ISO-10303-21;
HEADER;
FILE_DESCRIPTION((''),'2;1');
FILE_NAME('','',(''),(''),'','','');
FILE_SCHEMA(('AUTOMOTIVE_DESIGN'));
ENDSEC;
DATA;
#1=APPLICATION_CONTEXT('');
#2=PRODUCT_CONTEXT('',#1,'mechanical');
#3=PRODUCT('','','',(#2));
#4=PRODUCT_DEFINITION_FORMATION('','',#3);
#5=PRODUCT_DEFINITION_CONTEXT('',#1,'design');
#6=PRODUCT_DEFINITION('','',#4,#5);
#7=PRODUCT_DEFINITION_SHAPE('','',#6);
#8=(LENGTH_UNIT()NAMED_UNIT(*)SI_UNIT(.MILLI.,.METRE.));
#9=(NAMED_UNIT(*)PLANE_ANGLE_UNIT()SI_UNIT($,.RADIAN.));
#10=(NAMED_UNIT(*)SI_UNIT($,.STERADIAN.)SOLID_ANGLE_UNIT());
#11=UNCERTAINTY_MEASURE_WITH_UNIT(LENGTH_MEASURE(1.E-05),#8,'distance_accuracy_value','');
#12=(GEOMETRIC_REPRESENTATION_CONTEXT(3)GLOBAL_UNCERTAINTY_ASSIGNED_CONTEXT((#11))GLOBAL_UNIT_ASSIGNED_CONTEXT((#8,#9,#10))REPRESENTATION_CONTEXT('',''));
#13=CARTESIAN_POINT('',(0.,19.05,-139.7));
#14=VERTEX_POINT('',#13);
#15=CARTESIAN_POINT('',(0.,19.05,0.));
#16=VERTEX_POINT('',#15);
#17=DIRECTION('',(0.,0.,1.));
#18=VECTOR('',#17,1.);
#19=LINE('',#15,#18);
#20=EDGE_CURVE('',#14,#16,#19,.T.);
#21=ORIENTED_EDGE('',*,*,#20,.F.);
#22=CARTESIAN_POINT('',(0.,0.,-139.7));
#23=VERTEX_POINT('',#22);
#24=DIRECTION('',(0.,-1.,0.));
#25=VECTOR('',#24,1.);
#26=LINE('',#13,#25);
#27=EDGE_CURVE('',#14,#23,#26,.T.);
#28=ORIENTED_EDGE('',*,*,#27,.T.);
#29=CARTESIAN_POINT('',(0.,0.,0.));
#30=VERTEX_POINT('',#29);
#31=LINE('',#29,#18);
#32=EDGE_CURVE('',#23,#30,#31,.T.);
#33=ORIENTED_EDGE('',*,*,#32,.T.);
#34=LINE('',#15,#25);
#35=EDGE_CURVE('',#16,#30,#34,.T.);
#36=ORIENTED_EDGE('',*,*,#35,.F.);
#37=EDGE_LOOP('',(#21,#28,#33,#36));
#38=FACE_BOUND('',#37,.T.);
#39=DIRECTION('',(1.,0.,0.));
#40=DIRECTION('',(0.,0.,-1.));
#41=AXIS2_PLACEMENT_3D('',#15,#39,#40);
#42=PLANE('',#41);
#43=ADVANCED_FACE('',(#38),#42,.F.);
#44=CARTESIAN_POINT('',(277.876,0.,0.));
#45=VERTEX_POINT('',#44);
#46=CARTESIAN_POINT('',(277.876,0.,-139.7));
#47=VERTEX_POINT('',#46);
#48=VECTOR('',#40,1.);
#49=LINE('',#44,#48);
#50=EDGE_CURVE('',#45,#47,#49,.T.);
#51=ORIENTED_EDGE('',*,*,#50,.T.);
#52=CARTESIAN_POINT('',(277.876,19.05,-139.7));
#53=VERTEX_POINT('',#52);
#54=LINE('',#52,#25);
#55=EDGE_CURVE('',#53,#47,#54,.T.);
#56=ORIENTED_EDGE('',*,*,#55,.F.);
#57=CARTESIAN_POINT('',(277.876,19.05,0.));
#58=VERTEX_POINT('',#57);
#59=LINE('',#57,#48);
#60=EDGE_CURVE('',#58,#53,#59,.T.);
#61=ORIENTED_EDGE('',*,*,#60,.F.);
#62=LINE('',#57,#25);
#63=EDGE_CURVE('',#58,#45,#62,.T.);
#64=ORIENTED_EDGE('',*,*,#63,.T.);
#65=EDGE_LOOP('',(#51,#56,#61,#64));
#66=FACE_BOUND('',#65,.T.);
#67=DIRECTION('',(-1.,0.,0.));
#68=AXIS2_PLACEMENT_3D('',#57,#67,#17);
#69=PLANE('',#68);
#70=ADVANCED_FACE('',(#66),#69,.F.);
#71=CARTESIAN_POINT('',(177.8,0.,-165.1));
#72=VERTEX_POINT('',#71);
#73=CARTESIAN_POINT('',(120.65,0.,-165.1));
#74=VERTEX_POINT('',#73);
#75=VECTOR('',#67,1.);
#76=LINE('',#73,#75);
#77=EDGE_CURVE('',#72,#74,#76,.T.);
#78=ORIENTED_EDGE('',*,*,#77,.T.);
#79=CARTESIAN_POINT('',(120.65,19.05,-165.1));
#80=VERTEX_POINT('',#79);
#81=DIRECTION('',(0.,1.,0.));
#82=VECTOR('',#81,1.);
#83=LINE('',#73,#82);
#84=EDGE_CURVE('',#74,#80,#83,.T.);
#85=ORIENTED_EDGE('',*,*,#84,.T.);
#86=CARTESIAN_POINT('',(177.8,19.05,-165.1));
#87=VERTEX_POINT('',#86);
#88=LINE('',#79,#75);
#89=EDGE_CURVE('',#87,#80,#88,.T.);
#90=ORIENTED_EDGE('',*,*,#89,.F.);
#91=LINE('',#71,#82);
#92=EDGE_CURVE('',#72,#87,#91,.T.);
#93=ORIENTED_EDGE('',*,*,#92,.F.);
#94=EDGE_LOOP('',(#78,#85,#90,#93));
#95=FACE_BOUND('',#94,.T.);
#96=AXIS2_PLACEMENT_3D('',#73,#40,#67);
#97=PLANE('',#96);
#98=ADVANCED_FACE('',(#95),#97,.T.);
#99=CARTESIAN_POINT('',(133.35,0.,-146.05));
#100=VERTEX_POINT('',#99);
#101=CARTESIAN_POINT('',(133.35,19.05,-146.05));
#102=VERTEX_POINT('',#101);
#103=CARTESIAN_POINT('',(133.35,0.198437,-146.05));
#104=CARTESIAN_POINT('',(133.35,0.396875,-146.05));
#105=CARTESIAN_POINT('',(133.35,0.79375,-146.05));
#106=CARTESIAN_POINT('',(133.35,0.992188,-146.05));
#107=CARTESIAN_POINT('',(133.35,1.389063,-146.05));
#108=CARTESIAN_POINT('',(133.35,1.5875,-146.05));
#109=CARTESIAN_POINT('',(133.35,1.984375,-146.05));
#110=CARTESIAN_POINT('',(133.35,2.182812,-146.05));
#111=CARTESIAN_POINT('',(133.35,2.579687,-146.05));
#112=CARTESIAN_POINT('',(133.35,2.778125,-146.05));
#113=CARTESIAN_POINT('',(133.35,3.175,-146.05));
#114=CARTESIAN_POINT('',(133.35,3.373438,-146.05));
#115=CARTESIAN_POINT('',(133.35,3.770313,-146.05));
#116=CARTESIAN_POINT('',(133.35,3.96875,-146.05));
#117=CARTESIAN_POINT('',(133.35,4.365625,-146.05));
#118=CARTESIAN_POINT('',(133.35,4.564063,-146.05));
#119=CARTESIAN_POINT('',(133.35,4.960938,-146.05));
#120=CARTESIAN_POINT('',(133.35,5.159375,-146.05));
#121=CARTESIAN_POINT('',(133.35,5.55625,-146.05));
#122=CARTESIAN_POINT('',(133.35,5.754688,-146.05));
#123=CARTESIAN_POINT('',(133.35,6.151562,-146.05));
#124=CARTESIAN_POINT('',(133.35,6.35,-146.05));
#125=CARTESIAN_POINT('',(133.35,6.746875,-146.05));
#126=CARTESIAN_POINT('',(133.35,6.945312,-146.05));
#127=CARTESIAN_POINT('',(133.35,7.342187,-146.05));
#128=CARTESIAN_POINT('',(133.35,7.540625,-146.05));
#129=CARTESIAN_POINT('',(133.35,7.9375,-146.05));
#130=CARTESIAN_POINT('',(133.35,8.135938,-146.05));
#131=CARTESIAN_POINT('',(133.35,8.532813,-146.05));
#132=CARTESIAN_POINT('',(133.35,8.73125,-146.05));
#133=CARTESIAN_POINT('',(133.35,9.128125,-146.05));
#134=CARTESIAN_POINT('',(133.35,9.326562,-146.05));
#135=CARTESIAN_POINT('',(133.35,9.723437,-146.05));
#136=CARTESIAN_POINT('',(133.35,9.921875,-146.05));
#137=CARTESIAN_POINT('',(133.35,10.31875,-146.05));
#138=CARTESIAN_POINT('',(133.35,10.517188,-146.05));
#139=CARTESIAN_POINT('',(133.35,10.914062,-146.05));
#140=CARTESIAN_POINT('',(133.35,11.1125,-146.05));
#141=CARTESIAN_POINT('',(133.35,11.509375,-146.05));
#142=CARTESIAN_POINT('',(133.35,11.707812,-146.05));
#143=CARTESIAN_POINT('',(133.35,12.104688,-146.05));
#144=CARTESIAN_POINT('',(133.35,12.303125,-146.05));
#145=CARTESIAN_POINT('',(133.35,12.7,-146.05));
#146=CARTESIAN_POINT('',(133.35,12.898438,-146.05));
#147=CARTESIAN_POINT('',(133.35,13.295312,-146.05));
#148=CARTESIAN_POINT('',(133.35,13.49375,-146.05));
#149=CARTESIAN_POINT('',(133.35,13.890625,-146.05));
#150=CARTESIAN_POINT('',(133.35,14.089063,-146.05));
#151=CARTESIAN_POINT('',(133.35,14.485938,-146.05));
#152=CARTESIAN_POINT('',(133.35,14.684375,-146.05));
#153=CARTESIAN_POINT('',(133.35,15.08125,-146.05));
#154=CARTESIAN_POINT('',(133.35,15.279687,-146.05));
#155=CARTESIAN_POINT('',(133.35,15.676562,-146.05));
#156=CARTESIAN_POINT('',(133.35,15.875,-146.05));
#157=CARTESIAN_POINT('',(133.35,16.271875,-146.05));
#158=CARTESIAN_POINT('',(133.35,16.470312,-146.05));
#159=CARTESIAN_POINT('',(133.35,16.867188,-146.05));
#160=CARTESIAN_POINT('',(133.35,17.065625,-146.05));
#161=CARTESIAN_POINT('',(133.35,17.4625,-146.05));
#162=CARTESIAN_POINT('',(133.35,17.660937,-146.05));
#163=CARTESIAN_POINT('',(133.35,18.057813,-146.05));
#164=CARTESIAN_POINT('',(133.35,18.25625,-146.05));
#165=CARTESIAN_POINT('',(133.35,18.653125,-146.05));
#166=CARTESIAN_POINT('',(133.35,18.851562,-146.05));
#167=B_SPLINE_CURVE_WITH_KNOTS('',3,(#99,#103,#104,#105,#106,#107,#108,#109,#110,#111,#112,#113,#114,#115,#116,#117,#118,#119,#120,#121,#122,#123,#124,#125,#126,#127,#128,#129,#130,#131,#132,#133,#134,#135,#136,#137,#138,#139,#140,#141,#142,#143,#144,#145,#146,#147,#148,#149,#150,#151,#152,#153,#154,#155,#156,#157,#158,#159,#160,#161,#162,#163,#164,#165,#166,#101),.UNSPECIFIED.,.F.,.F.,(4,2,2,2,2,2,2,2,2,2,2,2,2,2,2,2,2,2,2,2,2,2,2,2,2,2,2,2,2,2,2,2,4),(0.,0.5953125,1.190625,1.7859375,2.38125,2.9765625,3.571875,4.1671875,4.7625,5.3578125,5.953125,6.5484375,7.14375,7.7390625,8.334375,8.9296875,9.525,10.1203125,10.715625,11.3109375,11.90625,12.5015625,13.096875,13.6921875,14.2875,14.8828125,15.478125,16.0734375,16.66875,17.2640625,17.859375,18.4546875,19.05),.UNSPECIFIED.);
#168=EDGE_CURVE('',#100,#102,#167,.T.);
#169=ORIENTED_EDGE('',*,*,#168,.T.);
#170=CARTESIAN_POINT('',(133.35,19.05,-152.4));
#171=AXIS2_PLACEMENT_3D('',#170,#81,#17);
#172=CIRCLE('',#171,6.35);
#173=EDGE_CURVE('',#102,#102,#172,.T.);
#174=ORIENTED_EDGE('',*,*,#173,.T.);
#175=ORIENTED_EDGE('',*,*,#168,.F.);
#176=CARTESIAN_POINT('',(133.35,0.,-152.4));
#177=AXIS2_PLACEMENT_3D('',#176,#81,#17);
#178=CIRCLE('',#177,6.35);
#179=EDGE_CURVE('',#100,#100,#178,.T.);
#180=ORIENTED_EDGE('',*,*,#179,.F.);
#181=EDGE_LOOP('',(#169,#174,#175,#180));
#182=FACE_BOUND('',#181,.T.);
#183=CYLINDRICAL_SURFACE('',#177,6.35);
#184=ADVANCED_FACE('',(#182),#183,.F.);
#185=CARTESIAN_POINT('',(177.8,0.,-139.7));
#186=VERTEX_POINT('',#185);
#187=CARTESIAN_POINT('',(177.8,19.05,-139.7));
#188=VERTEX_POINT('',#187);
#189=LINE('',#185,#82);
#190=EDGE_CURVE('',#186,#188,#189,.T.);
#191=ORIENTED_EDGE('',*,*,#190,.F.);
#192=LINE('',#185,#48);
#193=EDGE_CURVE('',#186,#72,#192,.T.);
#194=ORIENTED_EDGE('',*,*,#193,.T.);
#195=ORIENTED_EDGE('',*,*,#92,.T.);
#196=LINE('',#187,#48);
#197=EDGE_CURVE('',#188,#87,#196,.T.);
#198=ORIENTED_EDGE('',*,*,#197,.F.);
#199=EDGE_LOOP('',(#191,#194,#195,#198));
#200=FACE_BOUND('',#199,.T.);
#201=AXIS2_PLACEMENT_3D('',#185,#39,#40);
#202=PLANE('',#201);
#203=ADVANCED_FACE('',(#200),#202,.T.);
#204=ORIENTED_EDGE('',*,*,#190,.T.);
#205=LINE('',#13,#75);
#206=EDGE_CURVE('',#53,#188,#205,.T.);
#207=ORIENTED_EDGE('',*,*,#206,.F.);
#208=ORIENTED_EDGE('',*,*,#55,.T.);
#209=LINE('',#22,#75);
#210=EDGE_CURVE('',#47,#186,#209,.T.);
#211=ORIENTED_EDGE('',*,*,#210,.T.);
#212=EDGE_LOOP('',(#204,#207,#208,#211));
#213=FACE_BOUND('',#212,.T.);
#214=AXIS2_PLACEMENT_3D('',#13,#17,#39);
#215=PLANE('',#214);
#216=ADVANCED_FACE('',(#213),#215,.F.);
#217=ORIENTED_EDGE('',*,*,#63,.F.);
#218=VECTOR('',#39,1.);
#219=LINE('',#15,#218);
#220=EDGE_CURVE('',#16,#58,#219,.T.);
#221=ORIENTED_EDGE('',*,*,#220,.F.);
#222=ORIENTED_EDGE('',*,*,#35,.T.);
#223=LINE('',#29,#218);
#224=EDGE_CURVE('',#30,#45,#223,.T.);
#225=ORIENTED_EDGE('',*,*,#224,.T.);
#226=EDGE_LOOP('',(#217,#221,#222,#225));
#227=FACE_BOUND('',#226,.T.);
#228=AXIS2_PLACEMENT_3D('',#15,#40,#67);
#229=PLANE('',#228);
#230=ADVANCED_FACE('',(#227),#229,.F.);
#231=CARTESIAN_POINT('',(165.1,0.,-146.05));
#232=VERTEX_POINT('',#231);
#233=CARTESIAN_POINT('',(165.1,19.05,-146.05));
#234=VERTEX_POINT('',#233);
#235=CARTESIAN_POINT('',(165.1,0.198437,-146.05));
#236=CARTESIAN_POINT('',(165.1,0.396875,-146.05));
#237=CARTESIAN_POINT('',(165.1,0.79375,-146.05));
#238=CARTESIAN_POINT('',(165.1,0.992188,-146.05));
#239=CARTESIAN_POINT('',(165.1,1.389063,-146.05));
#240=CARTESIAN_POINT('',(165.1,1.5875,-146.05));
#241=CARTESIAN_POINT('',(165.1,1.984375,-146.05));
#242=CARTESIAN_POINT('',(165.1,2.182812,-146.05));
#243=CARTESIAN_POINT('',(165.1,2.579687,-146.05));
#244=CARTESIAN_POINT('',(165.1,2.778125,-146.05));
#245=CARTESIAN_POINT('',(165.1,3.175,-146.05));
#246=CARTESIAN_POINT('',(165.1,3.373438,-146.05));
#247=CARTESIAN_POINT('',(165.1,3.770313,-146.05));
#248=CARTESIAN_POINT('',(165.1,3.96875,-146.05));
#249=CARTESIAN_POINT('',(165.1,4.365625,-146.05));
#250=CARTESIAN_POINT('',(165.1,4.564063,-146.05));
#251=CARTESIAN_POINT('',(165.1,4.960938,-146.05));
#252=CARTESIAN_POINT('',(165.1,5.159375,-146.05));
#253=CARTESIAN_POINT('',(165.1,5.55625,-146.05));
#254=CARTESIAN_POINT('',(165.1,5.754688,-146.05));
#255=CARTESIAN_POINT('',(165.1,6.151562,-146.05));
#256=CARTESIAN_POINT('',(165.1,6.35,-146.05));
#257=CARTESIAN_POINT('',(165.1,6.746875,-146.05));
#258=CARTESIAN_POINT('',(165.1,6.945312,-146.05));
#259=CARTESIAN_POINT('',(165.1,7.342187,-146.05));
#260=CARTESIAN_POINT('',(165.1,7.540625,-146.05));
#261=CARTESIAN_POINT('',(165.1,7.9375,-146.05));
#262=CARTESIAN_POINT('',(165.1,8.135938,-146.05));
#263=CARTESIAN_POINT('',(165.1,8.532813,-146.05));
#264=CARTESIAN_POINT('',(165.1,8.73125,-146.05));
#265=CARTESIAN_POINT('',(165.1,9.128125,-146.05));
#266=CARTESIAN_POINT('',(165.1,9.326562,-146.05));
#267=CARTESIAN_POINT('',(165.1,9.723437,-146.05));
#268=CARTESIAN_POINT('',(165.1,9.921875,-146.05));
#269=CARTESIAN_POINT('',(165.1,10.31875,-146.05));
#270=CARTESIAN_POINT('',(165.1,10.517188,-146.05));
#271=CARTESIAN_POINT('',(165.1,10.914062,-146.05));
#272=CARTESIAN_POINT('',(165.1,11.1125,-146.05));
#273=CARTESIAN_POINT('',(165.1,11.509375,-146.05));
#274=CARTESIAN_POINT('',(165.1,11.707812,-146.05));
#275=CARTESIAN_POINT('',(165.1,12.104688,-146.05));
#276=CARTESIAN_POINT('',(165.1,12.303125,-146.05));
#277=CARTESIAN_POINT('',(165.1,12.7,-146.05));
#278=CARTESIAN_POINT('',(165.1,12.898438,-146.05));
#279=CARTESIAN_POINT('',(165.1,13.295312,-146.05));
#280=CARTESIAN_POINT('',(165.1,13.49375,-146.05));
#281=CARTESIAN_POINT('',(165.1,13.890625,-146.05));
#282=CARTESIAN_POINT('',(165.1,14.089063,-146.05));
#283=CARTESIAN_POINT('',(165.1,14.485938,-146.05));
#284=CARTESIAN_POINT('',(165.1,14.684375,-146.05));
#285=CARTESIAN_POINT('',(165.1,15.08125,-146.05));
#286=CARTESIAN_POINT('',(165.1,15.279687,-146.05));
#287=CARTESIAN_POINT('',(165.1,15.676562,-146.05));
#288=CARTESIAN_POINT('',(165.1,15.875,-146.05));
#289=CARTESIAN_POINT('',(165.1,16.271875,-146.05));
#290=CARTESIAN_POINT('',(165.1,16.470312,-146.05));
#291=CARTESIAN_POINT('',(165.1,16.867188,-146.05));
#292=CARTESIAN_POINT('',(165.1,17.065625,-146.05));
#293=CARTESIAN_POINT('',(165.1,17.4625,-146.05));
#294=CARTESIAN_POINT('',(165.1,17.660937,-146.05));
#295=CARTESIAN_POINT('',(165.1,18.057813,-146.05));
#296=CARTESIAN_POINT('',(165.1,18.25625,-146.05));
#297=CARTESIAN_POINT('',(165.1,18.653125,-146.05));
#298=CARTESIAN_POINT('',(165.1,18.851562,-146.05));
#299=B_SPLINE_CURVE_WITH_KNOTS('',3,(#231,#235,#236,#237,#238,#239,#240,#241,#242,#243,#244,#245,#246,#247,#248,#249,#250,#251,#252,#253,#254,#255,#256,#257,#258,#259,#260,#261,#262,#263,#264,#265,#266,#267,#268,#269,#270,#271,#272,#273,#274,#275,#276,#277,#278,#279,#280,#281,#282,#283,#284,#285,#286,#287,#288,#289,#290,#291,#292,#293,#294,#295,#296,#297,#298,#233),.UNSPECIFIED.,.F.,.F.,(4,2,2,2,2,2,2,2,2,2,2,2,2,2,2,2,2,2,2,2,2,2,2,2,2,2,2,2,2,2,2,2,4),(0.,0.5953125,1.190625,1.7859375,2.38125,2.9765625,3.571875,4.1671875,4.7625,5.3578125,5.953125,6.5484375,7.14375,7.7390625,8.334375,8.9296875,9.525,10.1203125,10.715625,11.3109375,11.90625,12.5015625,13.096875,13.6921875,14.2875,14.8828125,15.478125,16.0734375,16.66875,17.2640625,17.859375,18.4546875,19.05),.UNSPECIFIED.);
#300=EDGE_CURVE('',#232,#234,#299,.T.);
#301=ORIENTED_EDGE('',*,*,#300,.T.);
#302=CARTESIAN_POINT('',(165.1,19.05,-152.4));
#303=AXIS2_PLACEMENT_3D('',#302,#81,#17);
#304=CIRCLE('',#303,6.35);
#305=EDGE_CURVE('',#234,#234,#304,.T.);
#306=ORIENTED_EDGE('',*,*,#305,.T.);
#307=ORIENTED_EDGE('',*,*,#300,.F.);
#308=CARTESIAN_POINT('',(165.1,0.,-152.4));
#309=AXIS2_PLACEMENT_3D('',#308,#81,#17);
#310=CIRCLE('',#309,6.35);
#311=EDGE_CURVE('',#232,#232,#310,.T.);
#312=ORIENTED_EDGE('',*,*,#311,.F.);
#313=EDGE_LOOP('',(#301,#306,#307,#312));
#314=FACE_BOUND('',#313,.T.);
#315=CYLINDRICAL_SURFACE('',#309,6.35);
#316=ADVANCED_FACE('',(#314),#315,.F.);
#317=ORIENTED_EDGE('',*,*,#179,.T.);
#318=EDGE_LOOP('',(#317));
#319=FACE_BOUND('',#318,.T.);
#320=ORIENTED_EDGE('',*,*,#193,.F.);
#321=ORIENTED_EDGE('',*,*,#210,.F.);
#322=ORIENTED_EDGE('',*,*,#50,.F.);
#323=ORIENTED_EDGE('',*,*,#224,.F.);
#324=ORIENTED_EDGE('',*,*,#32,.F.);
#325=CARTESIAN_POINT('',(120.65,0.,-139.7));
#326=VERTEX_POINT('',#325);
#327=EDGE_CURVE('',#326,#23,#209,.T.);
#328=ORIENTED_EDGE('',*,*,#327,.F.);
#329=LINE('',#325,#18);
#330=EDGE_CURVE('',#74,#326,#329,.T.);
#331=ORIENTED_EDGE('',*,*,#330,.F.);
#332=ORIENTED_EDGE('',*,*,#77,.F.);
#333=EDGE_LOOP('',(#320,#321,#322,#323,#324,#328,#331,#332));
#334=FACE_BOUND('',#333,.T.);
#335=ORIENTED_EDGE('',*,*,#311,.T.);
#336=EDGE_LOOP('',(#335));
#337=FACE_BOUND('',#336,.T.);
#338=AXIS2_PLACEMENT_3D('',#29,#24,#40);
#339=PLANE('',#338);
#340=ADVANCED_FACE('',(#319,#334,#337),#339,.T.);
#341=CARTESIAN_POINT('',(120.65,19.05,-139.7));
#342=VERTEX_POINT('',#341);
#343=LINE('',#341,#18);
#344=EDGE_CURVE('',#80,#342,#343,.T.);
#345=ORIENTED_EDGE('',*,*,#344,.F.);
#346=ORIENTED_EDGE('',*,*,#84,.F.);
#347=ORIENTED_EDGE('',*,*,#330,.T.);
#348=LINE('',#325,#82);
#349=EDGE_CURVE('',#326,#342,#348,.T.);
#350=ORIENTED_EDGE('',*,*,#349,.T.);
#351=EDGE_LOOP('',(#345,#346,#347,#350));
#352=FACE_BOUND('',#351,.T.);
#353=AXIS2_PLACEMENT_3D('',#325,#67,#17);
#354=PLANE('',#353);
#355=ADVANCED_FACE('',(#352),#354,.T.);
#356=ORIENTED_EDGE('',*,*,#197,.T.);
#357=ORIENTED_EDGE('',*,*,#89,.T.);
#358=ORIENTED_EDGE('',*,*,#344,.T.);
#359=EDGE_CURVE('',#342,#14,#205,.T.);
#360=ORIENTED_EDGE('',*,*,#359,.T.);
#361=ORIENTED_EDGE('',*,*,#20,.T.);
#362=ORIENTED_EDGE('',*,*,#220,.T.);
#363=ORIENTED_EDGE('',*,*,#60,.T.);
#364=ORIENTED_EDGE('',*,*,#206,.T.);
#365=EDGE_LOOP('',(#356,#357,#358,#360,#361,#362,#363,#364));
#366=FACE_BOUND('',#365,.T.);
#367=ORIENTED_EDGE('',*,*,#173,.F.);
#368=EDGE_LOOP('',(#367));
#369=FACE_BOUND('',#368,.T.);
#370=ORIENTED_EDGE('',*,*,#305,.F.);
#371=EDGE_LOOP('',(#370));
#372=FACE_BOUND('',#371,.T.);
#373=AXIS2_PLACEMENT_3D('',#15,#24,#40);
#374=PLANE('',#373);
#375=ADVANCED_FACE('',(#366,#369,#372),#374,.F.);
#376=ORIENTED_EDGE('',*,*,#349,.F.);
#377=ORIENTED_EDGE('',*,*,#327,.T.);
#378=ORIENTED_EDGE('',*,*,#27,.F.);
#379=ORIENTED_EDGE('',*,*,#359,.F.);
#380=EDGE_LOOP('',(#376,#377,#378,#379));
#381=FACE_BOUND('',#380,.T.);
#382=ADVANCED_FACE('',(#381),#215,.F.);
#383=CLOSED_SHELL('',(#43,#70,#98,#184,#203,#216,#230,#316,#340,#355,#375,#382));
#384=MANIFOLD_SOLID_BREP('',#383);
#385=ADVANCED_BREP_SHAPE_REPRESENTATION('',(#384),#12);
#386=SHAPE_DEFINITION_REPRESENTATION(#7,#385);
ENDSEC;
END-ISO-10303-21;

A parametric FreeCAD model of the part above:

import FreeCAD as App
import Part
import Sketcher
Q = App.Units.Quantity

doc = App.newDocument("Part")
body = doc.addObject("PartDesign::Body", "Body")

# Sketch on XZ plane
sketch1 = doc.addObject("Sketcher::SketchObject", "Sketch")
body.addObject(sketch1)
sketch1.AttachmentSupport = (doc.XZ_Plane, [""])
sketch1.MapMode = "FlatFace"
sketch1.addGeometry(Part.LineSegment(App.Vector(0, -140, 0), App.Vector(0, 0, 0)), False)
sketch1.addGeometry(Part.LineSegment(App.Vector(0, 0, 0), App.Vector(278, 0, 0)), False)
sketch1.addGeometry(Part.LineSegment(App.Vector(278, 0, 0), App.Vector(278, -140, 0)), False)
sketch1.addGeometry(Part.LineSegment(App.Vector(278, -140, 0), App.Vector(0, -140, 0)), False)
sketch1.addConstraint(Sketcher.Constraint("Coincident", 0, 2, 1, 1))
sketch1.addConstraint(Sketcher.Constraint("Coincident", 1, 2, 2, 1))
sketch1.addConstraint(Sketcher.Constraint("Coincident", 2, 2, 3, 1))
sketch1.addConstraint(Sketcher.Constraint("Coincident", 3, 2, 0, 1))
sketch1.addConstraint(Sketcher.Constraint("Vertical", 0))
sketch1.addConstraint(Sketcher.Constraint("Horizontal", 1))
sketch1.addConstraint(Sketcher.Constraint("Vertical", 2))
sketch1.addConstraint(Sketcher.Constraint("Horizontal", 3))
sketch1.addConstraint(Sketcher.Constraint("Coincident", 0, 2, -1, 1))
sketch1.addConstraint(Sketcher.Constraint("DistanceY", 0, 1, 0, 2, Q("5.5 in")))
sketch1.addConstraint(Sketcher.Constraint("DistanceX", 1, 1, 1, 2, Q("10.94 in")))
pad1 = doc.addObject("PartDesign::Pad", "Pad")
body.addObject(pad1)
pad1.Profile = sketch1
pad1.Length = Q("0.75 in")
pad1.Reversed = True

# Sketch on XZ plane
sketch2 = doc.addObject("Sketcher::SketchObject", "Sketch001")
body.addObject(sketch2)
sketch2.AttachmentSupport = (doc.XZ_Plane, [""])
sketch2.MapMode = "FlatFace"
sketch2.AttachmentOffset = App.Placement(App.Vector(0, 0, -0.75 * 25.4), App.Rotation())
sketch2.addGeometry(Part.LineSegment(App.Vector(121, -165, 0), App.Vector(121, -140, 0)), False)
sketch2.addGeometry(Part.LineSegment(App.Vector(121, -140, 0), App.Vector(178, -140, 0)), False)
sketch2.addGeometry(Part.LineSegment(App.Vector(178, -140, 0), App.Vector(178, -165, 0)), False)
sketch2.addGeometry(Part.LineSegment(App.Vector(178, -165, 0), App.Vector(121, -165, 0)), False)
sketch2.addGeometry(Part.Circle(App.Vector(133, -152, 0), App.Vector(0, 0, 1), 6), False)
sketch2.addGeometry(Part.Circle(App.Vector(165, -152, 0), App.Vector(0, 0, 1), 6), False)
sketch2.addConstraint(Sketcher.Constraint("Coincident", 0, 2, 1, 1))
sketch2.addConstraint(Sketcher.Constraint("Coincident", 1, 2, 2, 1))
sketch2.addConstraint(Sketcher.Constraint("Coincident", 2, 2, 3, 1))
sketch2.addConstraint(Sketcher.Constraint("Coincident", 3, 2, 0, 1))
sketch2.addConstraint(Sketcher.Constraint("Vertical", 0))
sketch2.addConstraint(Sketcher.Constraint("Horizontal", 1))
sketch2.addConstraint(Sketcher.Constraint("Vertical", 2))
sketch2.addConstraint(Sketcher.Constraint("Horizontal", 3))
sketch2.addConstraint(Sketcher.Constraint("Equal", 4, 5))
sketch2.addConstraint(Sketcher.Constraint("Horizontal", 4, 3, 5, 3))
sketch2.addConstraint(Sketcher.Constraint("Diameter", 4, Q("0.5 in")))
sketch2.addConstraint(Sketcher.Constraint("DistanceY", 0, 1, 0, 2, Q("1 in")))
sketch2.addConstraint(Sketcher.Constraint("DistanceY", 4, 3, -1, 1, Q("6 in")))
sketch2.addConstraint(Sketcher.Constraint("DistanceX", -1, 1, 1, 2, Q("7 in")))
sketch2.addConstraint(Sketcher.Constraint("DistanceX", 1, 1, 1, 2, Q("2.25 in")))
sketch2.addConstraint(Sketcher.Constraint("DistanceX", -1, 1, 5, 3, Q("6.5 in")))
sketch2.addConstraint(Sketcher.Constraint("DistanceY", 0, 2, -1, 1, Q("5.5 in")))
sketch2.addConstraint(Sketcher.Constraint("DistanceX", 0, 2, 4, 3, Q("0.5 in")))
pad2 = doc.addObject("PartDesign::Pad", "Pad001")
body.addObject(pad2)
pad2.Profile = sketch2
pad2.Length = Q("0.75 in")

doc.recompute()
